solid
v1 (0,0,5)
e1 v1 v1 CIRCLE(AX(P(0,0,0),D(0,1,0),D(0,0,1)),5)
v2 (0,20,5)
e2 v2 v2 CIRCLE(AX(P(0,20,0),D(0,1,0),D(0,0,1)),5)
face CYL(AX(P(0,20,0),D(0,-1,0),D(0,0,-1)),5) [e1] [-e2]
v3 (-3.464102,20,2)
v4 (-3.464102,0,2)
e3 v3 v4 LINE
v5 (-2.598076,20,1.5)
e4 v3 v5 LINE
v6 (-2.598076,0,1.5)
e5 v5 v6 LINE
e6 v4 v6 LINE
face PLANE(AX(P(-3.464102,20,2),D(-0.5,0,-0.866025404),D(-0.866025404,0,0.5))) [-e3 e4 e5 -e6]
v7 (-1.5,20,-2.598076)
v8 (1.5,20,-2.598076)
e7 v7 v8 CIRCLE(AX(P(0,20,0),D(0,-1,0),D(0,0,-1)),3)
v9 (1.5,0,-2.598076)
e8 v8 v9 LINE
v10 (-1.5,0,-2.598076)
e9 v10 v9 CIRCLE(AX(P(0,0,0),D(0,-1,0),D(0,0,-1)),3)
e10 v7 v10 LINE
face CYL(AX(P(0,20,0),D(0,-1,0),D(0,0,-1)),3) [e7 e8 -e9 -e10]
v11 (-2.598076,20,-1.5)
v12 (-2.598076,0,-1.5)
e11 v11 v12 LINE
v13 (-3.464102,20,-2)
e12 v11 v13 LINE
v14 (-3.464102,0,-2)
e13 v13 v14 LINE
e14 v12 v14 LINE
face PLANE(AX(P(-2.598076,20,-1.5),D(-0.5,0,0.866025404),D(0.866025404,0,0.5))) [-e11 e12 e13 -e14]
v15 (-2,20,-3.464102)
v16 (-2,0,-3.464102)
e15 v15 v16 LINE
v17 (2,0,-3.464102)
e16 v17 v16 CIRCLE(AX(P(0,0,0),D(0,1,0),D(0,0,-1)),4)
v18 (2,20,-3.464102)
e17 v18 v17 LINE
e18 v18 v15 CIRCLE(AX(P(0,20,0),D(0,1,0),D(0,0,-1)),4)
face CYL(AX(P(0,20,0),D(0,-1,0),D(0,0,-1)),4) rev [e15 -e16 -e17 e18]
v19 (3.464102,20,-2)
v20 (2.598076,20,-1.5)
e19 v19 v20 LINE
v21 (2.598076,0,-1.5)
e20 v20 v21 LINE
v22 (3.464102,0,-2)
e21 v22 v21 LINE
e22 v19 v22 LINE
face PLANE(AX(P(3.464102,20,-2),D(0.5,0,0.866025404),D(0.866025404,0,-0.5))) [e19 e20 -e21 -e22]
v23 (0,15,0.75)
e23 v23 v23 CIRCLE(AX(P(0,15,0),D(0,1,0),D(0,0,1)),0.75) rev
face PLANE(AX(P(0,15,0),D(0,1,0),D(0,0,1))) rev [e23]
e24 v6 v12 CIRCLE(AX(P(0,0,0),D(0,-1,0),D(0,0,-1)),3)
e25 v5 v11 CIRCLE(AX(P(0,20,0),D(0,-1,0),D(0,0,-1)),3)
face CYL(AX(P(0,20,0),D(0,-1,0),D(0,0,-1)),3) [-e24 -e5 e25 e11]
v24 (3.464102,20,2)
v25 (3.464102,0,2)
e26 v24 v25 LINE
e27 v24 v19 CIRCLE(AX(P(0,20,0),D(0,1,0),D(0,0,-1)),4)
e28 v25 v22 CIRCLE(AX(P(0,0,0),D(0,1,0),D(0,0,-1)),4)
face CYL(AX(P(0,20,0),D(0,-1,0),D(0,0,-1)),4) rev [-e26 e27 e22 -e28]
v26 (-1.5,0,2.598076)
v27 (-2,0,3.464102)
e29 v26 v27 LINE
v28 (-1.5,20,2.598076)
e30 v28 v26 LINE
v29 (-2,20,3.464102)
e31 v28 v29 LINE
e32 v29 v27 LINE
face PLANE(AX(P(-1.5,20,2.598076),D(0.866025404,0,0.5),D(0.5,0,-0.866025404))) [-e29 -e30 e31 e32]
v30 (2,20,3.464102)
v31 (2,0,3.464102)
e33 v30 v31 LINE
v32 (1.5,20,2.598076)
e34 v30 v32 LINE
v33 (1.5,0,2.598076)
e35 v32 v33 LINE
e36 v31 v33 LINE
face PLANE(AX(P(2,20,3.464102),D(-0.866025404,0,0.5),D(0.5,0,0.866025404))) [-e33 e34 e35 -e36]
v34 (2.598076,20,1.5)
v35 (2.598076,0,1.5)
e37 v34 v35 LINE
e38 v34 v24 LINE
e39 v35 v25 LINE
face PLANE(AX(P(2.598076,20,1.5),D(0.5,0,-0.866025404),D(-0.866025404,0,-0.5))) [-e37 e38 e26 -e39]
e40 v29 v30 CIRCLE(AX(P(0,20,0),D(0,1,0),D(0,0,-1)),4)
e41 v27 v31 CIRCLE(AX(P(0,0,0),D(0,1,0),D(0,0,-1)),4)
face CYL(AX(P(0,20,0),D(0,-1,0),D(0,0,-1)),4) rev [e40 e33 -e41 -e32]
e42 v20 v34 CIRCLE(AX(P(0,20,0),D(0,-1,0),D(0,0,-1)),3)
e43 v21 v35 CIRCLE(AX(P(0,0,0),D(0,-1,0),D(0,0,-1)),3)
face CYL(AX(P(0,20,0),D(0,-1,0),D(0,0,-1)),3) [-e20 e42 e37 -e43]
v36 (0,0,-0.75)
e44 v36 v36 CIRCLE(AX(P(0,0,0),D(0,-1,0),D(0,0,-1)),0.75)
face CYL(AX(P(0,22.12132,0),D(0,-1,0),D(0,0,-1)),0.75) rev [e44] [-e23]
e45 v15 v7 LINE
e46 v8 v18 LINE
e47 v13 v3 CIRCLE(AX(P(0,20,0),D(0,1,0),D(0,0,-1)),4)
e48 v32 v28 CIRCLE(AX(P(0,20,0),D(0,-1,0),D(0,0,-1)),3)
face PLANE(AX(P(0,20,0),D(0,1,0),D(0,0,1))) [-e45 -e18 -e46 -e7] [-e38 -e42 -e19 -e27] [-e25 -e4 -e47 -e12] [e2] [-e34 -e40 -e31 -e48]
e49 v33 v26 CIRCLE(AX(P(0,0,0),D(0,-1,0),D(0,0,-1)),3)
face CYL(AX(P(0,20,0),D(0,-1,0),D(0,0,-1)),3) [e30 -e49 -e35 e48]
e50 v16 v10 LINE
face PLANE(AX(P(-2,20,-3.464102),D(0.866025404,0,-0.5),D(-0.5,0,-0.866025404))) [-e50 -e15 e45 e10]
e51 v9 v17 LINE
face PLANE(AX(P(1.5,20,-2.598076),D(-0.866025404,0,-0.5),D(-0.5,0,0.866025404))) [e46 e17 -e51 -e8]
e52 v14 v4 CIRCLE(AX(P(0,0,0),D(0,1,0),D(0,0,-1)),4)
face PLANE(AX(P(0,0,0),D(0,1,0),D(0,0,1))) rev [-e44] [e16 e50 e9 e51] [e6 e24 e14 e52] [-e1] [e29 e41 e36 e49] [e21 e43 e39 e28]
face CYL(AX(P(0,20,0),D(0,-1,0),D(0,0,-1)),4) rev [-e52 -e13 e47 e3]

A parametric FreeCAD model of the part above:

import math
import FreeCAD as App
import Part
import Sketcher

V = App.Vector
Q = App.Units.Quantity

doc = App.newDocument("Part")
params = doc.addObject("Spreadsheet::Sheet", "Params")
for row, (alias, value) in enumerate([
    ("sketch1_diameter", "10 mm"),
    ("sketch1_radius", "4 mm"),
    ("sketch1_radius2", "3 mm"),
    ("pad1_length", "20 mm"),
    ("sketch2_diameter", "1.5 mm"),
    ("pocket1_length", "15 mm"),
], start=1):
    params.set(f"A{row}", alias)
    params.set(f"B{row}", "=" + value)
    params.setAlias(f"B{row}", alias)

body = doc.addObject("PartDesign::Body", "Body")

# Sketch on XZ plane
sketch1 = body.newObject("Sketcher::SketchObject", "Sketch")
sketch1.AttachmentSupport = (doc.getObject("XZ_Plane"), [""])
sketch1.MapMode = "FlatFace"
sketch1.addGeometry([
    Part.Circle(V(0, 0, 0), V(0, 0, 1), 5),  # 0
    Part.LineSegment(V(-1.5, -2.6, 0), V(-2, -3.5, 0)),  # 1
    Part.ArcOfCircle(Part.Circle(V(0, 0, 0), V(0, 0, 1), 4), math.radians(-120), math.radians(-60)),  # 2
    Part.LineSegment(V(2, -3.5, 0), V(1.5, -2.6, 0)),  # 3
    Part.ArcOfCircle(Part.Circle(V(0, 0, 0), V(0, 0, 1), 3), math.radians(-120), math.radians(-60)),  # 4
    Part.LineSegment(V(-3.5, -2, 0), V(-2.6, -1.5, 0)),  # 5
    Part.ArcOfCircle(Part.Circle(V(0, 0, 0), V(0, 0, 1), 3), math.radians(150), math.radians(210)),  # 6
    Part.LineSegment(V(-2.6, 1.5, 0), V(-3.5, 2, 0)),  # 7
    Part.ArcOfCircle(Part.Circle(V(0, 0, 0), V(0, 0, 1), 4), math.radians(150), math.radians(210)),  # 8
    Part.LineSegment(V(-2, 3.5, 0), V(-1.5, 2.6, 0)),  # 9
    Part.ArcOfCircle(Part.Circle(V(0, 0, 0), V(0, 0, 1), 3), math.radians(60), math.radians(120)),  # 10
    Part.LineSegment(V(1.5, 2.6, 0), V(2, 3.5, 0)),  # 11
    Part.ArcOfCircle(Part.Circle(V(0, 0, 0), V(0, 0, 1), 4), math.radians(60), math.radians(120)),  # 12
    Part.LineSegment(V(3.5, 2, 0), V(2.6, 1.5, 0)),  # 13
    Part.ArcOfCircle(Part.Circle(V(0, 0, 0), V(0, 0, 1), 3), math.radians(-30), math.radians(30)),  # 14
    Part.LineSegment(V(2.6, -1.5, 0), V(3.5, -2, 0)),  # 15
    Part.ArcOfCircle(Part.Circle(V(0, 0, 0), V(0, 0, 1), 4), math.radians(-30), math.radians(30)),  # 16
], False)
sketch1.addConstraint([
    Sketcher.Constraint("Coincident", 1, 2, 2, 1),
    Sketcher.Constraint("Coincident", 2, 2, 3, 1),
    Sketcher.Constraint("Coincident", 3, 2, 4, 2),
    Sketcher.Constraint("Coincident", 4, 1, 1, 1),
    Sketcher.Constraint("Coincident", 5, 2, 6, 2),
    Sketcher.Constraint("Coincident", 6, 1, 7, 1),
    Sketcher.Constraint("Coincident", 7, 2, 8, 1),
    Sketcher.Constraint("Coincident", 8, 2, 5, 1),
    Sketcher.Constraint("Coincident", 9, 2, 10, 2),
    Sketcher.Constraint("Coincident", 10, 1, 11, 1),
    Sketcher.Constraint("Coincident", 11, 2, 12, 1),
    Sketcher.Constraint("Coincident", 12, 2, 9, 1),
    Sketcher.Constraint("Coincident", 13, 2, 14, 2),
    Sketcher.Constraint("Coincident", 14, 1, 15, 1),
    Sketcher.Constraint("Coincident", 15, 2, 16, 1),
    Sketcher.Constraint("Coincident", 16, 2, 13, 1),
    Sketcher.Constraint("Coincident", 0, 3, -1, 1),
    Sketcher.Constraint("Coincident", 2, 3, -1, 1),
    Sketcher.Constraint("Coincident", 4, 3, -1, 1),
    Sketcher.Constraint("Coincident", 6, 3, -1, 1),
    Sketcher.Constraint("Coincident", 8, 3, -1, 1),
    Sketcher.Constraint("Coincident", 10, 3, -1, 1),
    Sketcher.Constraint("Coincident", 12, 3, -1, 1),
    Sketcher.Constraint("Coincident", 14, 3, -1, 1),
    Sketcher.Constraint("Coincident", 16, 3, -1, 1),
    Sketcher.Constraint("Equal", 4, 6),
    Sketcher.Constraint("Equal", 2, 8),
    Sketcher.Constraint("Equal", 6, 10),
    Sketcher.Constraint("Equal", 8, 12),
    Sketcher.Constraint("Equal", 10, 14),
    Sketcher.Constraint("Equal", 12, 16),
    Sketcher.Constraint("Perpendicular", 3, 5),
    Sketcher.Constraint("Perpendicular", 1, 7),
    Sketcher.Constraint("Perpendicular", 5, 9),
    Sketcher.Constraint("Perpendicular", 7, 11),
    Sketcher.Constraint("Perpendicular", 9, 13),
    Sketcher.Constraint("Perpendicular", 11, 15),
    Sketcher.Constraint("Horizontal", 1, 2, 2, 2),
    Sketcher.Constraint("Horizontal", 3, 2, 4, 1),
    Sketcher.Constraint("Horizontal", 9, 2, 10, 1),
    Sketcher.Constraint("Horizontal", 6, 1, 13, 2),
    Sketcher.Constraint("Horizontal", 5, 2, 14, 1),
    Sketcher.Constraint("Vertical", 5, 2, 6, 1),
    Sketcher.Constraint("Vertical", 4, 1, 9, 2),
    Sketcher.Constraint("Diameter", 0, 10.0),
    Sketcher.Constraint("Radius", 2, 4.0),
    Sketcher.Constraint("Radius", 4, 3.0),
    Sketcher.Constraint("Angle", 1, Q("-120 deg")),
    Sketcher.Constraint("DistanceX", 1, 2, -1, 1, 2.0),
    Sketcher.Constraint("DistanceY", -1, 1, 7, 2, 2.0),
])
sketch1.setExpression("Constraints[44]", "Params.sketch1_diameter")
sketch1.setExpression("Constraints[45]", "Params.sketch1_radius")
sketch1.setExpression("Constraints[46]", "Params.sketch1_radius2")
pad1 = body.newObject("PartDesign::Pad", "Pad")
pad1.Profile = sketch1
pad1.setExpression("Length", "Params.pad1_length")
pad1.Reversed = True

# Sketch on XZ plane
sketch2 = body.newObject("Sketcher::SketchObject", "Sketch001")
sketch2.AttachmentSupport = (doc.getObject("XZ_Plane"), [""])
sketch2.MapMode = "FlatFace"
sketch2.addGeometry(Part.Circle(V(0, 0, 0), V(0, 0, 1), 0.8), False)
sketch2.addConstraint([
    Sketcher.Constraint("Coincident", 0, 3, -1, 1),
    Sketcher.Constraint("Diameter", 0, 1.5),
])
sketch2.setExpression("Constraints[1]", "Params.sketch2_diameter")
pocket1 = body.newObject("PartDesign::Pocket", "Pocket")
pocket1.Profile = sketch2
pocket1.setExpression("Length", "Params.pocket1_length")

doc.recompute()
